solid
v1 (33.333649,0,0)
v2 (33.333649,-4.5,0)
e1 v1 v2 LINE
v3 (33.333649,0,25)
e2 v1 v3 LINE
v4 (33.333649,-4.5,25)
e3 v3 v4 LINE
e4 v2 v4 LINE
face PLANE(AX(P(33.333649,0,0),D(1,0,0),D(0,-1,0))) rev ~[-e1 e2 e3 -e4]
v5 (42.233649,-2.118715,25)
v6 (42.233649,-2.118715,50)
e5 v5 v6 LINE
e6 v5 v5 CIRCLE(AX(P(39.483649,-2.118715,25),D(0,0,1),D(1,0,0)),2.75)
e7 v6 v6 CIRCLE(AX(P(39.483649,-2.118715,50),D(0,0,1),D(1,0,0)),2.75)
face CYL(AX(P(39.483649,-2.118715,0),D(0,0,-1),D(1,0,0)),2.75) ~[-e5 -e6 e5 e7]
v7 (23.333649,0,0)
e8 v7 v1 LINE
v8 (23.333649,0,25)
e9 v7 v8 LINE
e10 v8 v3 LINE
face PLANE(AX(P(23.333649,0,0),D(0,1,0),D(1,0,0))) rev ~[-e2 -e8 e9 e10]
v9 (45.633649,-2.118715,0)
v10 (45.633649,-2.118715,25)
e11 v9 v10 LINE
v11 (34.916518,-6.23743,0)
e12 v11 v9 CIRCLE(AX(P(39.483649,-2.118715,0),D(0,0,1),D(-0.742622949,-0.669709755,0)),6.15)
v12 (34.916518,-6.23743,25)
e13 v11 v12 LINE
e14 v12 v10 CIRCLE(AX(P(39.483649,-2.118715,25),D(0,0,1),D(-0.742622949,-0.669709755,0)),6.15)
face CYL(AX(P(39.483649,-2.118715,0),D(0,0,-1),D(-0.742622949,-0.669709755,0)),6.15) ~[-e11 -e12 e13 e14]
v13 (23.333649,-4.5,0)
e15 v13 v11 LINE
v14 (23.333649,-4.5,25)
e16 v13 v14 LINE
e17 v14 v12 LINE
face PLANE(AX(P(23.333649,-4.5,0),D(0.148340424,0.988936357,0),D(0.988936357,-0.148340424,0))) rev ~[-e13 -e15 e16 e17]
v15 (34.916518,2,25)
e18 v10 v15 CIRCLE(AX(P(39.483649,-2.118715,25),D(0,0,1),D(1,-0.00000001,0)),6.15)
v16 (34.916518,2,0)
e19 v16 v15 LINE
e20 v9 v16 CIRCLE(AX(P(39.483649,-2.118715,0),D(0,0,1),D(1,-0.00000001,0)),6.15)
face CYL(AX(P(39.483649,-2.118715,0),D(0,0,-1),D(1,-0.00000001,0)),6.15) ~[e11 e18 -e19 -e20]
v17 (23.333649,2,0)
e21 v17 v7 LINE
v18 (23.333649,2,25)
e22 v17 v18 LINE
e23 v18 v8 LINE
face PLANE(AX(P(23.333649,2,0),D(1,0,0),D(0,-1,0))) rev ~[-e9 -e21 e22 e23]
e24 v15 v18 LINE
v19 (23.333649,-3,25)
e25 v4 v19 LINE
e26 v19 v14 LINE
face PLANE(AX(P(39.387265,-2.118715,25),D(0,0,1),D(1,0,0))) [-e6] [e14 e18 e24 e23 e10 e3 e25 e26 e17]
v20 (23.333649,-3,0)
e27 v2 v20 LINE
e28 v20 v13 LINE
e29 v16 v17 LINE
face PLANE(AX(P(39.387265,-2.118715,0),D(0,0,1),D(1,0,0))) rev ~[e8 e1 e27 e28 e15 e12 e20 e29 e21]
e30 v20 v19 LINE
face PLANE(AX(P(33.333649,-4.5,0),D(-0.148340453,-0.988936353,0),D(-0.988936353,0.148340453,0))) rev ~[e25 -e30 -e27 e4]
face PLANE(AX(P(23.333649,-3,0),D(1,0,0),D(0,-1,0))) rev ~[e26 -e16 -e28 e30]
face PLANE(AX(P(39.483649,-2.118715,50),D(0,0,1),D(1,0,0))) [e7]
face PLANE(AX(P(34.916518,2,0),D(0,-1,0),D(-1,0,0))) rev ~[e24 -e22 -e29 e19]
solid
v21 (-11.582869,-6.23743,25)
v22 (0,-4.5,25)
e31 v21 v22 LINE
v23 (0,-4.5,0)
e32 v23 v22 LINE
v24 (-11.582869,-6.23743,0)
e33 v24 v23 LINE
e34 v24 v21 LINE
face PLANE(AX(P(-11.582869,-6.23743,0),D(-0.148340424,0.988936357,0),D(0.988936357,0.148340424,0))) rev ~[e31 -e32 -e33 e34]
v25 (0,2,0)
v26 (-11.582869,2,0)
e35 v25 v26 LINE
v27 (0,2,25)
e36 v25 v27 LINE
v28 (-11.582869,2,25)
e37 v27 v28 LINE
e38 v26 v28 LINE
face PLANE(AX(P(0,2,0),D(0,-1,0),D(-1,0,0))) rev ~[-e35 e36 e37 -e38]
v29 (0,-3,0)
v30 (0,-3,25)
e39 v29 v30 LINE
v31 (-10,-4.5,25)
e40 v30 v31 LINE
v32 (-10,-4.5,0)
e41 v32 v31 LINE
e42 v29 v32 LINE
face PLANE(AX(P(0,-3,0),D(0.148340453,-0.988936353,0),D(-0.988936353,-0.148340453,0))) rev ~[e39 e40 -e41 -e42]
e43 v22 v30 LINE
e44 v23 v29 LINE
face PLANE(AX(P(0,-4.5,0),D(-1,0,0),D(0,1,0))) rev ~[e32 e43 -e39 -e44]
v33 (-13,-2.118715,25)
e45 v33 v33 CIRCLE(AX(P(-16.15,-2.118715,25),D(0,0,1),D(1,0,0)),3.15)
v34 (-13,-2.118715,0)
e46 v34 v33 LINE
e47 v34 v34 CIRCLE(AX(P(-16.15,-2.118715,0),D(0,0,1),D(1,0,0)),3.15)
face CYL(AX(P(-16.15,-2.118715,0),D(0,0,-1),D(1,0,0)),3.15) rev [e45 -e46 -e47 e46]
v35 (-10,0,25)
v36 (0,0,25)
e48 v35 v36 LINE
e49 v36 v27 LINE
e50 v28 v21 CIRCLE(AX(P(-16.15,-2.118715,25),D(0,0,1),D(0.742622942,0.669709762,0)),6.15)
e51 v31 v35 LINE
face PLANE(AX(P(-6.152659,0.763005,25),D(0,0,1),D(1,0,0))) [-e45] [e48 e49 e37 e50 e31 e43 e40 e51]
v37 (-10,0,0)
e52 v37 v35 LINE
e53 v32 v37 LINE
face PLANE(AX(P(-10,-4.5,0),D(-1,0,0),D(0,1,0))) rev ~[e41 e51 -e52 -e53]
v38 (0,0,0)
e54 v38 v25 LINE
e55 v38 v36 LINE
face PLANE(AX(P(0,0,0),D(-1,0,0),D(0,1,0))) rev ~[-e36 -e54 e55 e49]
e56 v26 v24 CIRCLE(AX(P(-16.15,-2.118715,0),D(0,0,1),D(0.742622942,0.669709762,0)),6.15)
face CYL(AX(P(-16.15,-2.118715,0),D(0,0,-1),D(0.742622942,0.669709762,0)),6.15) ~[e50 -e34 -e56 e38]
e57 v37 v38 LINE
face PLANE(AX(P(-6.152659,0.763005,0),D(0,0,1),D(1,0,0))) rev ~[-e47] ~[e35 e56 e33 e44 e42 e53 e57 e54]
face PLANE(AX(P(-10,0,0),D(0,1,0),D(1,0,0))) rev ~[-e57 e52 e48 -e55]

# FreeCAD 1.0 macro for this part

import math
import FreeCAD as App
import Part
import Sketcher
from FreeCAD import Vector
Q = App.Units.Quantity

doc = App.newDocument("Part")
body = doc.addObject("PartDesign::Body", "Body")

# Sketch on XY plane
sketch1 = body.newObject("Sketcher::SketchObject", "Sketch")
sketch1.AttachmentSupport = (doc.getObject("XY_Plane"), [""])
sketch1.MapMode = "FlatFace"
sketch1.addGeometry(Part.LineSegment(Vector(-10, 0, 0), Vector(0, 0, 0)), False)
sketch1.addGeometry(Part.LineSegment(Vector(0, 0, 0), Vector(0, 2, 0)), False)
sketch1.addGeometry(Part.LineSegment(Vector(0, 2, 0), Vector(-11.6, 2, 0)), False)
sketch1.addGeometry(Part.ArcOfCircle(Part.Circle(Vector(-16.2, -2.1, 0), Vector(0, 0, 1), 6.1), math.radians(42), math.radians(318)), False)
sketch1.addGeometry(Part.LineSegment(Vector(-11.6, -6.2, 0), Vector(0, -4.5, 0)), False)
sketch1.addGeometry(Part.LineSegment(Vector(0, -4.5, 0), Vector(0, -3, 0)), False)
sketch1.addGeometry(Part.LineSegment(Vector(0, -3, 0), Vector(-10, -4.5, 0)), False)
sketch1.addGeometry(Part.LineSegment(Vector(-10, -4.5, 0), Vector(-10, 0, 0)), False)
sketch1.addGeometry(Part.Circle(Vector(-16.1, -2.1, 0), Vector(0, 0, 1), 3.1), False)
sketch1.addConstraint(Sketcher.Constraint("Coincident", 0, 2, 1, 1))
sketch1.addConstraint(Sketcher.Constraint("Coincident", 1, 2, 2, 1))
sketch1.addConstraint(Sketcher.Constraint("Coincident", 2, 2, 3, 1))
sketch1.addConstraint(Sketcher.Constraint("Coincident", 3, 2, 4, 1))
sketch1.addConstraint(Sketcher.Constraint("Coincident", 4, 2, 5, 1))
sketch1.addConstraint(Sketcher.Constraint("Coincident", 5, 2, 6, 1))
sketch1.addConstraint(Sketcher.Constraint("Coincident", 6, 2, 7, 1))
sketch1.addConstraint(Sketcher.Constraint("Coincident", 7, 2, 0, 1))
sketch1.addConstraint(Sketcher.Constraint("Horizontal", 0))
sketch1.addConstraint(Sketcher.Constraint("Vertical", 1))
sketch1.addConstraint(Sketcher.Constraint("Horizontal", 2))
sketch1.addConstraint(Sketcher.Constraint("Vertical", 5))
sketch1.addConstraint(Sketcher.Constraint("Vertical", 7))
sketch1.addConstraint(Sketcher.Constraint("Coincident", 0, 2, -1, 1))
sketch1.addConstraint(Sketcher.Constraint("Coincident", 8, 3, 3, 3))
sketch1.addConstraint(Sketcher.Constraint("PointOnObject", 4, 2, -2))
sketch1.addConstraint(Sketcher.Constraint("Parallel", 4, 6))
sketch1.addConstraint(Sketcher.Constraint("Horizontal", 4, 2, 6, 2))
sketch1.addConstraint(Sketcher.Constraint("Vertical", 2, 2, 3, 2))
sketch1.addConstraint(Sketcher.Constraint("Diameter", 8, Q("6.3 mm")))
sketch1.addConstraint(Sketcher.Constraint("DistanceX", 0, 1, 0, 2, Q("10 mm")))
sketch1.addConstraint(Sketcher.Constraint("DistanceY", 1, 1, 1, 2, Q("2 mm")))
sketch1.addConstraint(Sketcher.Constraint("Radius", 3, Q("6.15 mm")))
sketch1.addConstraint(Sketcher.Constraint("DistanceY", 5, 1, 5, 2, Q("1.5 mm")))
sketch1.addConstraint(Sketcher.Constraint("DistanceY", 7, 1, 7, 2, Q("4.5 mm")))
sketch1.addConstraint(Sketcher.Constraint("DistanceX", 3, 3, -1, 1, Q("16.15 mm")))
pad1 = body.newObject("PartDesign::Pad", "Pad")
pad1.Profile = sketch1
pad1.Length = 25
body2 = doc.addObject("PartDesign::Body", "Body001")

# Sketch on XY plane
sketch2 = body2.newObject("Sketcher::SketchObject", "Sketch001")
sketch2.AttachmentSupport = (doc.getObject("XY_Plane001"), [""])
sketch2.MapMode = "FlatFace"
sketch2.addGeometry(Part.ArcOfCircle(Part.Circle(Vector(39.5, -2.1, 0), Vector(0, 0, 1), 6.1), math.radians(0), math.radians(138)), False)
sketch2.addGeometry(Part.LineSegment(Vector(34.9, 2, 0), Vector(23.3, 2, 0)), False)
sketch2.addGeometry(Part.LineSegment(Vector(23.3, 2, 0), Vector(23.3, 0, 0)), False)
sketch2.addGeometry(Part.LineSegment(Vector(23.3, 0, 0), Vector(33.3, 0, 0)), False)
sketch2.addGeometry(Part.LineSegment(Vector(33.3, 0, 0), Vector(33.3, -4.5, 0)), False)
sketch2.addGeometry(Part.LineSegment(Vector(33.3, -4.5, 0), Vector(23.3, -3, 0)), False)
sketch2.addGeometry(Part.LineSegment(Vector(23.3, -3, 0), Vector(23.3, -4.5, 0)), False)
sketch2.addGeometry(Part.LineSegment(Vector(23.3, -4.5, 0), Vector(34.9, -6.2, 0)), False)
sketch2.addGeometry(Part.ArcOfCircle(Part.Circle(Vector(39.5, -2.1, 0), Vector(0, 0, 1), 6.1), math.radians(-138), math.radians(0)), False)
sketch2.addGeometry(Part.Circle(Vector(39.5, -2.1, 0), Vector(0, 0, 1), 2.8), False)
sketch2.addConstraint(Sketcher.Constraint("Coincident", 0, 2, 1, 1))
sketch2.addConstraint(Sketcher.Constraint("Coincident", 1, 2, 2, 1))
sketch2.addConstraint(Sketcher.Constraint("Coincident", 2, 2, 3, 1))
sketch2.addConstraint(Sketcher.Constraint("Coincident", 3, 2, 4, 1))
sketch2.addConstraint(Sketcher.Constraint("Coincident", 4, 2, 5, 1))
sketch2.addConstraint(Sketcher.Constraint("Coincident", 5, 2, 6, 1))
sketch2.addConstraint(Sketcher.Constraint("Coincident", 6, 2, 7, 1))
sketch2.addConstraint(Sketcher.Constraint("Coincident", 7, 2, 8, 1))
sketch2.addConstraint(Sketcher.Constraint("Tangent", 8, 2, 0, 1))
sketch2.addConstraint(Sketcher.Constraint("Horizontal", 1))
sketch2.addConstraint(Sketcher.Constraint("Vertical", 2))
sketch2.addConstraint(Sketcher.Constraint("Horizontal", 3))
sketch2.addConstraint(Sketcher.Constraint("Vertical", 4))
sketch2.addConstraint(Sketcher.Constraint("Vertical", 6))
sketch2.addConstraint(Sketcher.Constraint("Coincident", 9, 3, 0, 3))
sketch2.addConstraint(Sketcher.Constraint("Equal", 0, 8))
sketch2.addConstraint(Sketcher.Constraint("PointOnObject", 2, 2, -1))
sketch2.addConstraint(Sketcher.Constraint("Parallel", 5, 7))
sketch2.addConstraint(Sketcher.Constraint("Horizontal", 4, 2, 6, 2))
sketch2.addConstraint(Sketcher.Constraint("Horizontal", 9, 3, 8, 2))
sketch2.addConstraint(Sketcher.Constraint("Vertical", 2, 2, 5, 2))
sketch2.addConstraint(Sketcher.Constraint("Vertical", 0, 2, 7, 2))
sketch2.addConstraint(Sketcher.Constraint("Diameter", 9, Q("5.5 mm")))
sketch2.addConstraint(Sketcher.Constraint("DistanceX", 3, 1, 3, 2, Q("10 mm")))
sketch2.addConstraint(Sketcher.Constraint("DistanceY", 2, 2, 2, 1, Q("2 mm")))
sketch2.addConstraint(Sketcher.Constraint("Radius", 0, Q("6.15 mm")))
sketch2.addConstraint(Sketcher.Constraint("DistanceY", 4, 2, 4, 1, Q("4.5 mm")))
sketch2.addConstraint(Sketcher.Constraint("DistanceY", 6, 2, 6, 1, Q("1.5 mm")))
sketch2.addConstraint(Sketcher.Constraint("DistanceX", 1, 2, 9, 3, Q("16.15 mm")))
sketch2.addConstraint(Sketcher.Constraint("DistanceX", -1, 1, 0, 3, Q("39.483649 mm")))
pad2 = body2.newObject("PartDesign::Pad", "Pad001")
pad2.Profile = sketch2
pad2.Length = 25

# Sketch on XY plane
sketch3 = body2.newObject("Sketcher::SketchObject", "Sketch002")
sketch3.AttachmentSupport = (doc.getObject("XY_Plane001"), [""])
sketch3.MapMode = "FlatFace"
sketch3.addGeometry(Part.Circle(Vector(39.5, -2.1, 0), Vector(0, 0, 1), 2.8), False)
sketch3.addConstraint(Sketcher.Constraint("Diameter", 0, Q("5.5 mm")))
sketch3.addConstraint(Sketcher.Constraint("DistanceX", -1, 1, 0, 3, Q("39.483649 mm")))
sketch3.addConstraint(Sketcher.Constraint("DistanceY", 0, 3, -1, 1, Q("2.118715 mm")))
pad3 = body2.newObject("PartDesign::Pad", "Pad002")
pad3.Profile = sketch3
pad3.Length = 50

doc.recompute()
